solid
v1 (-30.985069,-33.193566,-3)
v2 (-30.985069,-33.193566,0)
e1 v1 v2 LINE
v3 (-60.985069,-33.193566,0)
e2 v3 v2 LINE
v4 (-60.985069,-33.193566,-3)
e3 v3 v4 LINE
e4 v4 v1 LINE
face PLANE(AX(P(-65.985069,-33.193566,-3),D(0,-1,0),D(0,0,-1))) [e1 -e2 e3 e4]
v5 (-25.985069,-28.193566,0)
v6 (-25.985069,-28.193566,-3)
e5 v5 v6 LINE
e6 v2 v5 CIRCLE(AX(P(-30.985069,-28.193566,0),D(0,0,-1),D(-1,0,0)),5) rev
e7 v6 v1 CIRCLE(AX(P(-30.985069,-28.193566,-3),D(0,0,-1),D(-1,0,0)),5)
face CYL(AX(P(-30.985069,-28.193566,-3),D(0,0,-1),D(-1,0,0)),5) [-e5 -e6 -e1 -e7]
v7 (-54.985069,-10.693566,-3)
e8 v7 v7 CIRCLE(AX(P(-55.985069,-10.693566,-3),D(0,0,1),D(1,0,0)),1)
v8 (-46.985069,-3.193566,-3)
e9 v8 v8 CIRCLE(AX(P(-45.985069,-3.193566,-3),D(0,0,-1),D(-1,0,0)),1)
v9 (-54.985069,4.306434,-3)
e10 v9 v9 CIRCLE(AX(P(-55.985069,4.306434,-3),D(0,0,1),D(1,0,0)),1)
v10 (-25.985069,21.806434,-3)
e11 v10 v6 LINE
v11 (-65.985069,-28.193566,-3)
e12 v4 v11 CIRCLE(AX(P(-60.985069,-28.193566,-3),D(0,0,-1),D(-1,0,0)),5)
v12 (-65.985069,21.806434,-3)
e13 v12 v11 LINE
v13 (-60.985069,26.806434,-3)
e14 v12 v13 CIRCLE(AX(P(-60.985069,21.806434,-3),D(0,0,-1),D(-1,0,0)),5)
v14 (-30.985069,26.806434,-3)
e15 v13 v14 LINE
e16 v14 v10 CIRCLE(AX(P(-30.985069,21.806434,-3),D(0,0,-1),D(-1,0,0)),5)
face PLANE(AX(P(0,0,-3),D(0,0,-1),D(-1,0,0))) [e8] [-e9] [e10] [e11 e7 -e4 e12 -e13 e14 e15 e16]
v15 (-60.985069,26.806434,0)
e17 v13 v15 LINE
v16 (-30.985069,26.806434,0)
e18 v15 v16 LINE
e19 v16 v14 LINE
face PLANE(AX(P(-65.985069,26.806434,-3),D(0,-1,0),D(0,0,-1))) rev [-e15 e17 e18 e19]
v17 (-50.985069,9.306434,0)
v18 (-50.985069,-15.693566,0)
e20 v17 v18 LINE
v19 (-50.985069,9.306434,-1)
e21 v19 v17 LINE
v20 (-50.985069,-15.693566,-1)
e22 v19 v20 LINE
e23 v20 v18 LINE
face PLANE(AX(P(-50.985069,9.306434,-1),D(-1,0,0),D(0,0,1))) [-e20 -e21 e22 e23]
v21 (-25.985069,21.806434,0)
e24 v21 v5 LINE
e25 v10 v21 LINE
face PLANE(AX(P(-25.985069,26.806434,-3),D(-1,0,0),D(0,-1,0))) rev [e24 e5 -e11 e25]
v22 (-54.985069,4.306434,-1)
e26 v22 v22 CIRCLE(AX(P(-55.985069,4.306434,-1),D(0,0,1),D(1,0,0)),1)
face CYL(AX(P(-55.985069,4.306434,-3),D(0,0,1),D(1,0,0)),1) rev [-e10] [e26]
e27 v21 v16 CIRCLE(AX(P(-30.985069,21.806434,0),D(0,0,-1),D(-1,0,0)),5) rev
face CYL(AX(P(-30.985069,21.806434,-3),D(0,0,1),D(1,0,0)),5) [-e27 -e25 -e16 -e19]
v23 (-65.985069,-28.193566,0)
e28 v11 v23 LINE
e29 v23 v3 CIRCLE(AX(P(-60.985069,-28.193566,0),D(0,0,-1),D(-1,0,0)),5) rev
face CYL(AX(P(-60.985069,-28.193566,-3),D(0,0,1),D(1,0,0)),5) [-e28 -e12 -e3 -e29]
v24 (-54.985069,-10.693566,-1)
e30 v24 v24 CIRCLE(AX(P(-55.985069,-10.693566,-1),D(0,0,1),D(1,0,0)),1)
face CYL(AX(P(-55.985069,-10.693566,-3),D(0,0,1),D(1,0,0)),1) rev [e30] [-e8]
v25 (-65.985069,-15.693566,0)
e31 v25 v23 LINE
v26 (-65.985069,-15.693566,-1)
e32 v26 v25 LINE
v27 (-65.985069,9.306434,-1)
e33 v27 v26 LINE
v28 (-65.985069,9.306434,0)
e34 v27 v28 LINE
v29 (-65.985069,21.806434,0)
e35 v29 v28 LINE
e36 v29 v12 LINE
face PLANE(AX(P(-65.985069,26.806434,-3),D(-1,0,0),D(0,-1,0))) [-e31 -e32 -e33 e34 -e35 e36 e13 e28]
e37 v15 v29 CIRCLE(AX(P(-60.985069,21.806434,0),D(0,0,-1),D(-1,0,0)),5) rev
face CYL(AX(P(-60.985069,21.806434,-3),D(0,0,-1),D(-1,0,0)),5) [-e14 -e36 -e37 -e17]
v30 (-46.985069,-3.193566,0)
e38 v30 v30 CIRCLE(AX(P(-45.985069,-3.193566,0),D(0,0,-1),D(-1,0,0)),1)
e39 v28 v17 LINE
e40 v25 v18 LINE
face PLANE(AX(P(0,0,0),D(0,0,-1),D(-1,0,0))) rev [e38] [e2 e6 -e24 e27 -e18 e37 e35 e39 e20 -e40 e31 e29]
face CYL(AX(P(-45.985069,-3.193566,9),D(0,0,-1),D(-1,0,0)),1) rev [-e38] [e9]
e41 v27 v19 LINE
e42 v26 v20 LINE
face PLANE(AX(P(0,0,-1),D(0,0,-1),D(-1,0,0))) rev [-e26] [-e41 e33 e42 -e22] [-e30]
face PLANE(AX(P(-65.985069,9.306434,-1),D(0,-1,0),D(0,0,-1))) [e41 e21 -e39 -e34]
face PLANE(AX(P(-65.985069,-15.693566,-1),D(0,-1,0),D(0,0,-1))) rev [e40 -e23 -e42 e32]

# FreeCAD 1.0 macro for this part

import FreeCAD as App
import Part
import Sketcher


def edges_at(feature, points):
    """Names of the edges that pass closest to the given points."""
    edges = feature.Shape.Edges
    near = lambda p: min(range(len(edges)), key=lambda i: edges[i].distToShape(Part.Vertex(*p))[0])
    return sorted({f"Edge{near(p) + 1}" for p in points})


def add_polygon(sketch, points):
    """Adds a closed chain of lines whose ends are joined by coincident constraints."""
    first, n = sketch.GeometryCount, len(points)
    for a, b in zip(points, points[1:] + points[:1]):
        sketch.addGeometry(Part.LineSegment(App.Vector(*a, 0), App.Vector(*b, 0)), False)
    for i in range(n):
        sketch.addConstraint(Sketcher.Constraint("Coincident", first + i, 2, first + (i + 1) % n, 1))

doc = App.newDocument("Part")
params = doc.addObject("Spreadsheet::Sheet", "Params")
for row, (alias, value) in enumerate([
    ("sketch1_width", "40 mm"),
    ("sketch1_height", "60 mm"),
    ("pad1_length", "3 mm"),
    ("sketch2_width", "15 mm"),
    ("sketch2_height", "25 mm"),
    ("pocket1_length", "1 mm"),
    ("sketch3_diameter", "2 mm"),
    ("pocket2_length", "2 mm"),
    ("sketch4_diameter", "2 mm"),
    ("pocket3_length", "2 mm"),
    ("fillet_radius", "5 mm"),
    ("sketch5_diameter", "2 mm"),
    ("pocket4_length", "12 mm"),
], start=1):
    params.set(f"A{row}", alias)
    params.set(f"B{row}", "=" + value)
    params.setAlias(f"B{row}", alias)

body = doc.addObject("PartDesign::Body", "Body")

# Sketch on XY plane
sketch1 = body.newObject("Sketcher::SketchObject", "Sketch")
sketch1.AttachmentSupport = (doc.getObject("XY_Plane"), [""])
sketch1.MapMode = "FlatFace"
add_polygon(sketch1, [(-66, 27), (-66, -33), (-26, -33), (-26, 27)])  # lines 0-3
sketch1.addConstraint([
    Sketcher.Constraint("Vertical", 0),
    Sketcher.Constraint("Horizontal", 1),
    Sketcher.Constraint("Vertical", 2),
    Sketcher.Constraint("Horizontal", 3),
    Sketcher.Constraint("DistanceX", 1, 1, 1, 2, 40.0),
    Sketcher.Constraint("DistanceY", 0, 2, 0, 1, 60.0),
    Sketcher.Constraint("DistanceX", 0, 2, -1, 1, 65.985069),
    Sketcher.Constraint("DistanceY", 0, 2, -1, 1, 33.193566),
])
sketch1.setExpression("Constraints[8]", "Params.sketch1_width")
sketch1.setExpression("Constraints[9]", "Params.sketch1_height")
pad1 = body.newObject("PartDesign::Pad", "Pad")
pad1.Profile = sketch1
pad1.setExpression("Length", "Params.pad1_length")
pad1.Reversed = True

# Sketch on XY plane
sketch2 = body.newObject("Sketcher::SketchObject", "Sketch001")
sketch2.AttachmentSupport = (doc.getObject("XY_Plane"), [""])
sketch2.MapMode = "FlatFace"
add_polygon(sketch2, [(-66, 9), (-66, -16), (-51, -16), (-51, 9)])  # lines 0-3
sketch2.addConstraint([
    Sketcher.Constraint("Vertical", 0),
    Sketcher.Constraint("Horizontal", 1),
    Sketcher.Constraint("Vertical", 2),
    Sketcher.Constraint("Horizontal", 3),
    Sketcher.Constraint("DistanceX", 1, 1, 1, 2, 15.0),
    Sketcher.Constraint("DistanceY", 0, 2, 0, 1, 25.0),
    Sketcher.Constraint("DistanceX", 0, 2, -1, 1, 65.985069),
    Sketcher.Constraint("DistanceY", 0, 2, -1, 1, 15.693566),
])
sketch2.setExpression("Constraints[8]", "Params.sketch2_width")
sketch2.setExpression("Constraints[9]", "Params.sketch2_height")
pocket1 = body.newObject("PartDesign::Pocket", "Pocket")
pocket1.Profile = sketch2
pocket1.setExpression("Length", "Params.pocket1_length")

# Sketch on XY plane
sketch3 = body.newObject("Sketcher::SketchObject", "Sketch002")
sketch3.AttachmentSupport = (doc.getObject("XY_Plane"), [""])
sketch3.MapMode = "FlatFace"
sketch3.AttachmentOffset = App.Placement(App.Vector(0, 0, -1), App.Rotation())
sketch3.addGeometry(Part.Circle(App.Vector(-56, 4.3, 0), App.Vector(0, 0, 1), 1), False)
sketch3.addConstraint([
    Sketcher.Constraint("Diameter", 0, 2.0),
    Sketcher.Constraint("DistanceX", 0, 3, -1, 1, 55.985069),
    Sketcher.Constraint("DistanceY", -1, 1, 0, 3, 4.306434),
])
sketch3.setExpression("Constraints[0]", "Params.sketch3_diameter")
pocket2 = body.newObject("PartDesign::Pocket", "Pocket001")
pocket2.Profile = sketch3
pocket2.setExpression("Length", "Params.pocket2_length")

# Sketch on XY plane
sketch4 = body.newObject("Sketcher::SketchObject", "Sketch003")
sketch4.AttachmentSupport = (doc.getObject("XY_Plane"), [""])
sketch4.MapMode = "FlatFace"
sketch4.AttachmentOffset = App.Placement(App.Vector(0, 0, -1), App.Rotation())
sketch4.addGeometry(Part.Circle(App.Vector(-56, -10.7, 0), App.Vector(0, 0, 1), 1), False)
sketch4.addConstraint([
    Sketcher.Constraint("Diameter", 0, 2.0),
    Sketcher.Constraint("DistanceX", 0, 3, -1, 1, 55.985069),
    Sketcher.Constraint("DistanceY", 0, 3, -1, 1, 10.693566),
])
sketch4.setExpression("Constraints[0]", "Params.sketch4_diameter")
pocket3 = body.newObject("PartDesign::Pocket", "Pocket002")
pocket3.Profile = sketch4
pocket3.setExpression("Length", "Params.pocket3_length")
doc.recompute()

fillet = body.newObject("PartDesign::Fillet", "Fillet")
fillet.Base = (pocket3, edges_at(pocket3, [
    (-65.985, 26.806, -1.5),
    (-65.985, -33.194, -1.5),
    (-25.985, -33.194, -1.5),
    (-25.985, 26.806, -1.5),
]))
fillet.setExpression("Radius", "Params.fillet_radius")

# Sketch on XY plane
sketch5 = body.newObject("Sketcher::SketchObject", "Sketch004")
sketch5.AttachmentSupport = (doc.getObject("XY_Plane"), [""])
sketch5.MapMode = "FlatFace"
sketch5.AttachmentOffset = App.Placement(App.Vector(0, 0, -3), App.Rotation())
sketch5.addGeometry(Part.Circle(App.Vector(-46, -3.2, 0), App.Vector(0, 0, 1), 1), False)
sketch5.addConstraint([
    Sketcher.Constraint("Diameter", 0, 2.0),
    Sketcher.Constraint("DistanceX", 0, 3, -1, 1, 45.985069),
    Sketcher.Constraint("DistanceY", 0, 3, -1, 1, 3.193566),
])
sketch5.setExpression("Constraints[0]", "Params.sketch5_diameter")
pocket4 = body.newObject("PartDesign::Pocket", "Pocket003")
pocket4.Profile = sketch5
pocket4.setExpression("Length", "Params.pocket4_length")
pocket4.Reversed = True

doc.recompute()
